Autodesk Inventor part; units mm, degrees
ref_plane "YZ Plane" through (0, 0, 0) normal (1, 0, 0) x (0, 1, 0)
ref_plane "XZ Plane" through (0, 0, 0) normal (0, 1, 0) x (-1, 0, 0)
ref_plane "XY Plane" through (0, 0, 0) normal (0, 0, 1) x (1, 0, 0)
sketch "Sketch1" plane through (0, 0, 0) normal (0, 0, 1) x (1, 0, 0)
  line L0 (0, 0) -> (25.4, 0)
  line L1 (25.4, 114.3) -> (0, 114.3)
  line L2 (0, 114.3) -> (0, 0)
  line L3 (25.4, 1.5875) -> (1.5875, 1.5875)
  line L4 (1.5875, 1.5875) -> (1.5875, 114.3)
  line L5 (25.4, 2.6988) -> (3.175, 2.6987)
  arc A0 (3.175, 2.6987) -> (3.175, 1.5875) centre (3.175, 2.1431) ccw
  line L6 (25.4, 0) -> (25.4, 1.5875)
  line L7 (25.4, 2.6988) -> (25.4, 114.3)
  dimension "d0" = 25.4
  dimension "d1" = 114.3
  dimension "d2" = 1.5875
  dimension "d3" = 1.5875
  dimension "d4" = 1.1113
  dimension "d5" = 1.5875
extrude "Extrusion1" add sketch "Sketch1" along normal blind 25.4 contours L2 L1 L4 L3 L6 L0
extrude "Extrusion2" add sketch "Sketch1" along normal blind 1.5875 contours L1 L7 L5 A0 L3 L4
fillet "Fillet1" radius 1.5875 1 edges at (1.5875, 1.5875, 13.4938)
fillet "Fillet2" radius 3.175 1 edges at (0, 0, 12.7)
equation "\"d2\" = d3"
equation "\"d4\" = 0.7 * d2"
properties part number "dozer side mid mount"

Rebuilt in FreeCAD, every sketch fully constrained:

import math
import FreeCAD as App
import Part
import Sketcher

V = App.Vector
Q = App.Units.Quantity


def edges_at(feature, points):
    """Names of the edges that pass closest to the given points."""
    edges = feature.Shape.Edges
    near = lambda p: min(range(len(edges)), key=lambda i: edges[i].distToShape(Part.Vertex(*p))[0])
    return sorted({f"Edge{near(p) + 1}" for p in points})


def add_polygon(sketch, points):
    """Adds a closed chain of lines whose ends are joined by coincident constraints."""
    first, n = sketch.GeometryCount, len(points)
    for a, b in zip(points, points[1:] + points[:1]):
        sketch.addGeometry(Part.LineSegment(App.Vector(*a, 0), App.Vector(*b, 0)), False)
    for i in range(n):
        sketch.addConstraint(Sketcher.Constraint("Coincident", first + i, 2, first + (i + 1) % n, 1))

doc = App.newDocument("Part")
body = doc.addObject("PartDesign::Body", "Body")

# Sketch on XY plane
sketch1 = body.newObject("Sketcher::SketchObject", "Sketch")
sketch1.AttachmentSupport = (doc.getObject("XY_Plane"), [""])
sketch1.MapMode = "FlatFace"
add_polygon(sketch1, [(0, 114.3), (0, 0), (25.4, 0), (25.4, 1.5875), (1.5875, 1.5875), (1.5875, 114.3)])  # lines 0-5
sketch1.addConstraint(Sketcher.Constraint("Vertical", 0))
sketch1.addConstraint(Sketcher.Constraint("Horizontal", 1))
sketch1.addConstraint(Sketcher.Constraint("Vertical", 2))
sketch1.addConstraint(Sketcher.Constraint("Horizontal", 3))
sketch1.addConstraint(Sketcher.Constraint("Vertical", 4))
sketch1.addConstraint(Sketcher.Constraint("Horizontal", 5))
sketch1.addConstraint(Sketcher.Constraint("Coincident", 0, 2, -1, 1))
sketch1.addConstraint(Sketcher.Constraint("Equal", 5, 2))
sketch1.addConstraint(Sketcher.Constraint("DistanceX", 1, 1, 1, 2, Q("1 in")))
sketch1.addConstraint(Sketcher.Constraint("DistanceY", 0, 2, 0, 1, Q("4.5 in")))
sketch1.addConstraint(Sketcher.Constraint("DistanceX", 5, 2, 5, 1, Q("0.0625 in")))
pad1 = body.newObject("PartDesign::Pad", "Pad")
pad1.Profile = sketch1
pad1.Length = Q("1 in")

# Sketch on XY plane
sketch2 = body.newObject("Sketcher::SketchObject", "Sketch001")
sketch2.AttachmentSupport = (doc.getObject("XY_Plane"), [""])
sketch2.MapMode = "FlatFace"
sketch2.addGeometry(Part.LineSegment(V(25.4, 114.3, 0), V(1.5875, 114.3, 0)), False)
sketch2.addGeometry(Part.LineSegment(V(1.5875, 114.3, 0), V(1.5875, 1.5875, 0)), False)
sketch2.addGeometry(Part.LineSegment(V(1.5875, 1.5875, 0), V(3.175, 1.5875, 0)), False)
sketch2.addGeometry(Part.ArcOfCircle(Part.Circle(V(3.175, 2.1431, 0), V(0, 0, 1), 0.5556), math.radians(90), math.radians(270)), False)
sketch2.addGeometry(Part.LineSegment(V(3.175, 2.6987, 0), V(25.4, 2.6988, 0)), False)
sketch2.addGeometry(Part.LineSegment(V(25.4, 2.6988, 0), V(25.4, 114.3, 0)), False)
sketch2.addConstraint(Sketcher.Constraint("Coincident", 0, 2, 1, 1))
sketch2.addConstraint(Sketcher.Constraint("Coincident", 1, 2, 2, 1))
sketch2.addConstraint(Sketcher.Constraint("Tangent", 2, 2, 3, 2))
sketch2.addConstraint(Sketcher.Constraint("Tangent", 3, 1, 4, 1))
sketch2.addConstraint(Sketcher.Constraint("Coincident", 4, 2, 5, 1))
sketch2.addConstraint(Sketcher.Constraint("Coincident", 5, 2, 0, 1))
sketch2.addConstraint(Sketcher.Constraint("Horizontal", 0))
sketch2.addConstraint(Sketcher.Constraint("Vertical", 1))
sketch2.addConstraint(Sketcher.Constraint("Horizontal", 2))
sketch2.addConstraint(Sketcher.Constraint("Horizontal", 4))
sketch2.addConstraint(Sketcher.Constraint("Vertical", 5))
sketch2.addConstraint(Sketcher.Constraint("DistanceX", -1, 1, 4, 2, Q("1 in")))
sketch2.addConstraint(Sketcher.Constraint("DistanceY", -1, 1, 0, 2, Q("4.5 in")))
sketch2.addConstraint(Sketcher.Constraint("DistanceX", 2, 1, 2, 2, Q("0.0625 in")))
sketch2.addConstraint(Sketcher.Constraint("Radius", 3, 0.5556))
sketch2.addConstraint(Sketcher.Constraint("DistanceX", -1, 1, 0, 2, Q("0.0625 in")))
sketch2.addConstraint(Sketcher.Constraint("DistanceY", -1, 1, 1, 2, Q("0.0625 in")))
pad2 = body.newObject("PartDesign::Pad", "Pad001")
pad2.Profile = sketch2
pad2.Length = Q("0.0625 in")
doc.recompute()

fillet = body.newObject("PartDesign::Fillet", "Fillet")
fillet.Base = (pad2, edges_at(pad2, [(1.587, 1.587, 13.494)]))
fillet.Radius = Q("0.0625 in")
doc.recompute()

fillet2 = body.newObject("PartDesign::Fillet", "Fillet001")
fillet2.Base = (fillet, edges_at(fillet, [(0, 0, 12.7)]))
fillet2.Radius = Q("0.125 in")

doc.recompute()
